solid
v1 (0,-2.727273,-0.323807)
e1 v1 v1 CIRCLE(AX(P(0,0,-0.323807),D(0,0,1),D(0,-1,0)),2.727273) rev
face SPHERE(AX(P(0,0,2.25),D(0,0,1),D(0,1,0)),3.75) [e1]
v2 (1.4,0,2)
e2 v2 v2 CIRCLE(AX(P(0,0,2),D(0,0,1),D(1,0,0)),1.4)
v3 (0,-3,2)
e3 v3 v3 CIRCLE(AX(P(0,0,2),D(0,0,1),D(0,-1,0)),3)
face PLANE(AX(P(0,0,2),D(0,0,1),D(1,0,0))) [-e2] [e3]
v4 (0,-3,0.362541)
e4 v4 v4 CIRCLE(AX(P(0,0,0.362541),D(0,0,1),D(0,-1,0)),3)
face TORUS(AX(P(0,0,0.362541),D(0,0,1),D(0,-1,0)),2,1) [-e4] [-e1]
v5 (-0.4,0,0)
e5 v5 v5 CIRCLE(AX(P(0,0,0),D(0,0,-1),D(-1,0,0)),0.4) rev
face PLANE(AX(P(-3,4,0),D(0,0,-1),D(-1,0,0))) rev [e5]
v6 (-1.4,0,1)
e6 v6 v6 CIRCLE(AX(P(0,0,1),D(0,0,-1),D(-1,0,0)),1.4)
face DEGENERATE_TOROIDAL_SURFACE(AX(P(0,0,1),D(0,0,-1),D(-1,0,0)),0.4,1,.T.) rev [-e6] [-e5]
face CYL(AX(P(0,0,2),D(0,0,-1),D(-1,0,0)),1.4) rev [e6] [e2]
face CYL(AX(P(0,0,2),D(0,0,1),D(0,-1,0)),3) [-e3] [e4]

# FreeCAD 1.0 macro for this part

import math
import FreeCAD as App
import Part
import Sketcher

V = App.Vector
Q = App.Units.Quantity


def edges_at(feature, points):
    """Names of the edges that pass closest to the given points."""
    edges = feature.Shape.Edges
    near = lambda p: min(range(len(edges)), key=lambda i: edges[i].distToShape(Part.Vertex(*p))[0])
    return sorted({f"Edge{near(p) + 1}" for p in points})

doc = App.newDocument("Part")
body = doc.addObject("PartDesign::Body", "Body")

# Sketch on XY plane
sketch1 = body.newObject("Sketcher::SketchObject", "Sketch")
sketch1.AttachmentSupport = (doc.getObject("XY_Plane"), [""])
sketch1.MapMode = "FlatFace"
sketch1.addGeometry([
    Part.LineSegment(V(-3, 4, 0), V(-3, -4, 0)),  # 0
    Part.LineSegment(V(-3, -4, 0), V(3, -4, 0)),  # 1
    Part.LineSegment(V(3, -4, 0), V(3, 4, 0)),  # 2
    Part.LineSegment(V(3, 4, 0), V(-3, 4, 0)),  # 3
    Part.Circle(V(0, 0, 0), V(0, 0, 1), 1.4),  # 4
], False)
sketch1.addConstraint([
    Sketcher.Constraint("Coincident", 0, 2, 1, 1),
    Sketcher.Constraint("Coincident", 1, 2, 2, 1),
    Sketcher.Constraint("Coincident", 2, 2, 3, 1),
    Sketcher.Constraint("Coincident", 3, 2, 0, 1),
    Sketcher.Constraint("Vertical", 0),
    Sketcher.Constraint("Horizontal", 1),
    Sketcher.Constraint("Vertical", 2),
    Sketcher.Constraint("Horizontal", 3),
    Sketcher.Constraint("Coincident", 4, 3, -1, 1),
    Sketcher.Constraint("Symmetric", 0, 2, 2, 2, -1, 1),
    Sketcher.Constraint("Diameter", 4, Q("2.8 mm")),
    Sketcher.Constraint("DistanceX", 1, 1, 1, 2, Q("6 mm")),
    Sketcher.Constraint("DistanceY", 0, 2, 0, 1, Q("8 mm")),
])
pad1 = body.newObject("PartDesign::Pad", "Pad")
pad1.Profile = sketch1
pad1.Length = 2

# Sketch on XZ plane
sketch2 = body.newObject("Sketcher::SketchObject", "Sketch001")
sketch2.AttachmentSupport = (doc.getObject("XZ_Plane"), [""])
sketch2.MapMode = "FlatFace"
sketch2.addGeometry([
    Part.LineSegment(V(-3, 0, 0), V(3, 0, 0)),
    Part.ArcOfCircle(Part.Circle(V(0, 2.25, 0), V(0, 0, 1), 3.75), math.radians(-143.130102), math.radians(-36.869898)),
], False)
sketch2.addConstraint([
    Sketcher.Constraint("Coincident", 0, 1, 1, 1),
    Sketcher.Constraint("Coincident", 1, 2, 0, 2),
    Sketcher.Constraint("Horizontal", 0),
    Sketcher.Constraint("Symmetric", 0, 1, 1, 2, -1, 1),
    Sketcher.Constraint("DistanceX", 0, 1, 0, 2, Q("6 mm")),
    Sketcher.Constraint("Radius", 1, Q("3.75 mm")),
])
pad2 = body.newObject("PartDesign::Pad", "Pad001")
pad2.Profile = sketch2
pad2.Length = 8
pad2.Midplane = True

# Sketch on XY plane
sketch3 = body.newObject("Sketcher::SketchObject", "Sketch002")
sketch3.AttachmentSupport = (doc.getObject("XY_Plane"), [""])
sketch3.MapMode = "FlatFace"
sketch3.AttachmentOffset = App.Placement(V(0, 0, 2), App.Rotation())
sketch3.addGeometry([
    Part.LineSegment(V(-3, 4, 0), V(-3, 3, 0)),  # 0
    Part.LineSegment(V(-3, 3, 0), V(3, 3, 0)),  # 1
    Part.LineSegment(V(3, 3, 0), V(3, 4, 0)),  # 2
    Part.LineSegment(V(3, 4, 0), V(-3, 4, 0)),  # 3
    Part.LineSegment(V(-3, -3, 0), V(-3, -4, 0)),  # 4
    Part.LineSegment(V(-3, -4, 0), V(3, -4, 0)),  # 5
    Part.LineSegment(V(3, -4, 0), V(3, -3, 0)),  # 6
    Part.LineSegment(V(3, -3, 0), V(-3, -3, 0)),  # 7
], False)
sketch3.addConstraint([
    Sketcher.Constraint("Coincident", 0, 2, 1, 1),
    Sketcher.Constraint("Coincident", 1, 2, 2, 1),
    Sketcher.Constraint("Coincident", 2, 2, 3, 1),
    Sketcher.Constraint("Coincident", 3, 2, 0, 1),
    Sketcher.Constraint("Coincident", 4, 2, 5, 1),
    Sketcher.Constraint("Coincident", 5, 2, 6, 1),
    Sketcher.Constraint("Coincident", 6, 2, 7, 1),
    Sketcher.Constraint("Coincident", 7, 2, 4, 1),
    Sketcher.Constraint("Vertical", 0),
    Sketcher.Constraint("Horizontal", 1),
    Sketcher.Constraint("Vertical", 2),
    Sketcher.Constraint("Horizontal", 3),
    Sketcher.Constraint("Vertical", 4),
    Sketcher.Constraint("Horizontal", 5),
    Sketcher.Constraint("Vertical", 6),
    Sketcher.Constraint("Horizontal", 7),
    Sketcher.Constraint("Symmetric", 2, 2, 4, 2, -1, 1),
    Sketcher.Constraint("Symmetric", 0, 2, 6, 2, -1, 1),
    Sketcher.Constraint("Vertical", 3, 2, 4, 2),
    Sketcher.Constraint("DistanceX", 1, 1, 1, 2, Q("6 mm")),
    Sketcher.Constraint("DistanceY", 0, 2, 0, 1, Q("1 mm")),
    Sketcher.Constraint("DistanceY", -1, 1, 0, 2, Q("3 mm")),
])
pad3 = body.newObject("PartDesign::Pad", "Pad002")
pad3.Profile = sketch3
pad3.Length = 4
pad3.Reversed = True
doc.recompute()

fillet = body.newObject("PartDesign::Fillet", "Fillet")
fillet.Base = (pad3, edges_at(pad3, [(-1.4, 0, 0)]))
fillet.Radius = 1

# Sketch on YZ plane
sketch4 = body.newObject("Sketcher::SketchObject", "Sketch003")
sketch4.AttachmentSupport = (doc.getObject("YZ_Plane"), [""])
sketch4.MapMode = "FlatFace"
sketch4.addGeometry([
    Part.LineSegment(V(3, 2, 0), V(3, 0, 0)),  # 0
    Part.ArcOfCircle(Part.Circle(V(0, 2.25, 0), V(0, 0, 1), 3.75), math.radians(-90), math.radians(-36.869898)),  # 1
    Part.LineSegment(V(0, -1.5, 0), V(0, -3, 0)),  # 2
    Part.LineSegment(V(0, -3, 0), V(10, -3, 0)),  # 3
    Part.LineSegment(V(10, -3, 0), V(10, 2, 0)),  # 4
    Part.LineSegment(V(10, 2, 0), V(3, 2, 0)),  # 5
], False)
sketch4.addConstraint([
    Sketcher.Constraint("Coincident", 0, 2, 1, 2),
    Sketcher.Constraint("Coincident", 1, 1, 2, 1),
    Sketcher.Constraint("Coincident", 2, 2, 3, 1),
    Sketcher.Constraint("Coincident", 3, 2, 4, 1),
    Sketcher.Constraint("Coincident", 4, 2, 5, 1),
    Sketcher.Constraint("Coincident", 5, 2, 0, 1),
    Sketcher.Constraint("Vertical", 0),
    Sketcher.Constraint("Vertical", 2),
    Sketcher.Constraint("Horizontal", 3),
    Sketcher.Constraint("Vertical", 4),
    Sketcher.Constraint("Horizontal", 5),
    Sketcher.Constraint("PointOnObject", 1, 3, -2),
    Sketcher.Constraint("PointOnObject", 0, 2, -1),
    Sketcher.Constraint("PointOnObject", 1, 1, -2),
    Sketcher.Constraint("DistanceX", 3, 1, 3, 2, Q("10 mm")),
    Sketcher.Constraint("DistanceX", 5, 2, 5, 1, Q("7 mm")),
    Sketcher.Constraint("DistanceY", 0, 2, 0, 1, Q("2 mm")),
    Sketcher.Constraint("DistanceY", 4, 1, 4, 2, Q("5 mm")),
    Sketcher.Constraint("Radius", 1, Q("3.75 mm")),
])
groove = body.newObject("PartDesign::Groove", "Groove")
groove.Profile = sketch4
groove.ReferenceAxis = (sketch4, ["V_Axis"])
groove.Angle = 360
doc.recompute()

fillet2 = body.newObject("PartDesign::Fillet", "Fillet001")
fillet2.Base = (groove, edges_at(groove, [(0, -3, 0)]))
fillet2.Radius = 1

doc.recompute()
